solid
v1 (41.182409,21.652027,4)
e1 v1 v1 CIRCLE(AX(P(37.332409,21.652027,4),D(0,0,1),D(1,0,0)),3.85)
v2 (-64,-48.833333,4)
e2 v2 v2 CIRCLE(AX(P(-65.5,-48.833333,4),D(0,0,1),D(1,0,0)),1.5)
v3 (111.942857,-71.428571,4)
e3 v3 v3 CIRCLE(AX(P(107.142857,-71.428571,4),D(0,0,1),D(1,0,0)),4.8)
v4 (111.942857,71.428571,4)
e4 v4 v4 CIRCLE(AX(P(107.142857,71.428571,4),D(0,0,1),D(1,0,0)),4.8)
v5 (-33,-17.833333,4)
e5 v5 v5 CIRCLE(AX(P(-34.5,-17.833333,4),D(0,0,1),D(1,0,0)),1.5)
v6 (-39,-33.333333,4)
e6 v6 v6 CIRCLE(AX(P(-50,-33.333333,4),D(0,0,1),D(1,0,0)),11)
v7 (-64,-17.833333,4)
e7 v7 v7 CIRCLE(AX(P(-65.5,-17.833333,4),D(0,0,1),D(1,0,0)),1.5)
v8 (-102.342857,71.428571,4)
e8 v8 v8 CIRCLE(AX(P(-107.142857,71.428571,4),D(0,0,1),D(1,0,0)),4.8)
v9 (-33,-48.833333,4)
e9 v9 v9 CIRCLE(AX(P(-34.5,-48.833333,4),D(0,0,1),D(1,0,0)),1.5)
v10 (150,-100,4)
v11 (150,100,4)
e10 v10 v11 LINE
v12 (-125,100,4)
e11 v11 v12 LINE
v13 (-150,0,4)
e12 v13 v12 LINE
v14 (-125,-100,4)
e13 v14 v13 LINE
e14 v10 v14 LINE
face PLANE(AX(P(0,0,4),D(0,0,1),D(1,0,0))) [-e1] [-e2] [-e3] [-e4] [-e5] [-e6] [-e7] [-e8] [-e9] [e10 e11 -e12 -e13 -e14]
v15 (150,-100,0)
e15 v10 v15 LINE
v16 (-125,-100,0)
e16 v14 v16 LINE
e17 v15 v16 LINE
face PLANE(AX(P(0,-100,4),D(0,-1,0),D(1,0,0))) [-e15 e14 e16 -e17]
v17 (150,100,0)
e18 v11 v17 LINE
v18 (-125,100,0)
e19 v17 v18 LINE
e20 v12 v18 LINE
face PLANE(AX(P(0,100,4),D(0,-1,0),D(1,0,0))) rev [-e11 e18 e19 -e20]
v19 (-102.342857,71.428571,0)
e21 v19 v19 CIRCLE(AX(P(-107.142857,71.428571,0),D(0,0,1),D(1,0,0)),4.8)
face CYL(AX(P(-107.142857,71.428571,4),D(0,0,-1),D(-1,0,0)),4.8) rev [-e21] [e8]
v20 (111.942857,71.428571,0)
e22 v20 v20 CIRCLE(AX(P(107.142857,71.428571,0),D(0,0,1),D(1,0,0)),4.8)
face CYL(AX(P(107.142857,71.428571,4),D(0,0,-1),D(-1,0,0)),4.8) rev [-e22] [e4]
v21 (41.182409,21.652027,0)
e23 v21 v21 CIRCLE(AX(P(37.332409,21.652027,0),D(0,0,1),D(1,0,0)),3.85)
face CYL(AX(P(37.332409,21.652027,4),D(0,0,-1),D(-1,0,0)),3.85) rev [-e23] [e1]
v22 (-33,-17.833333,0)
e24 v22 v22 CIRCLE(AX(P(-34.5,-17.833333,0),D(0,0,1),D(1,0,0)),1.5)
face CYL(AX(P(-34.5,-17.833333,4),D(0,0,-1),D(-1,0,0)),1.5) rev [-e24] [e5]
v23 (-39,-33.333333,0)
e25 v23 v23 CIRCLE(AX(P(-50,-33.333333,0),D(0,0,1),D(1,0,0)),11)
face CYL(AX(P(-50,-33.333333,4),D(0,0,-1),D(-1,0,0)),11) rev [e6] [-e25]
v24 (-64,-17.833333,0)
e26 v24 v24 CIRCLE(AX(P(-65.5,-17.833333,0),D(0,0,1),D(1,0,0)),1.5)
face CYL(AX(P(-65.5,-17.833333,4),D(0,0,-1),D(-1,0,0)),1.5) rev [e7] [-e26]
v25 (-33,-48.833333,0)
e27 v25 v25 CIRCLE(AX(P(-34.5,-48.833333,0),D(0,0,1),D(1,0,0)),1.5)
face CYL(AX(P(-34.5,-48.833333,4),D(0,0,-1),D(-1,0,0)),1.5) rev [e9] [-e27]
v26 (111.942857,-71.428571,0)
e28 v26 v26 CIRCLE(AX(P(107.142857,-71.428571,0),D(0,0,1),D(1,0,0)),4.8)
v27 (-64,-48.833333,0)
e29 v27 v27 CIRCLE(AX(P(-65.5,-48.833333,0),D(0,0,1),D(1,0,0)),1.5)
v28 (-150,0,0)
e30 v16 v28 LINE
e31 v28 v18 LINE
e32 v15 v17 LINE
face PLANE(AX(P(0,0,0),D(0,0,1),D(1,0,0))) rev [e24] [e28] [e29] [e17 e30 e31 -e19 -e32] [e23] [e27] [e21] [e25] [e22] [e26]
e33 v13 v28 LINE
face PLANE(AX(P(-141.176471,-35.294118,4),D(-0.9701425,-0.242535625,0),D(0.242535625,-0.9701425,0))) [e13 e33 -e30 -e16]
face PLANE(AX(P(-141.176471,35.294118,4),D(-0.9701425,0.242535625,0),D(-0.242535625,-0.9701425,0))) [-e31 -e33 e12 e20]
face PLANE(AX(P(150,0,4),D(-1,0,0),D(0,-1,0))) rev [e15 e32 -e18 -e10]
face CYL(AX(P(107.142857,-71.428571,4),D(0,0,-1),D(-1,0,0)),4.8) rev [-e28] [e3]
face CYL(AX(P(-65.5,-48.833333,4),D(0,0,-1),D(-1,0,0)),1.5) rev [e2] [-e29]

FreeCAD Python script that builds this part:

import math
import FreeCAD as App
import Part
import Sketcher
from FreeCAD import Vector
Q = App.Units.Quantity

doc = App.newDocument("Part")
body = doc.addObject("PartDesign::Body", "Body")

sketch1 = body.newObject("Sketcher::SketchObject", "Sketch")
sketch1.AttachmentSupport = (doc.getObject("XY_Plane"), [""])
sketch1.MapMode = "FlatFace"
sketch1.addGeometry([
    Part.LineSegment(Vector(-125, -100, 0), Vector(150, -100, 0)),
    Part.LineSegment(Vector(150, -100, 0), Vector(150, 100, 0)),
    Part.LineSegment(Vector(150, 100, 0), Vector(-125, 100, 0)),
    Part.LineSegment(Vector(-125, 100, 0), Vector(-150, 0, 0)),
    Part.LineSegment(Vector(-150, 0, 0), Vector(-125, -100, 0)),
    Part.Circle(Vector(-100, -83.333333, 0), Vector(0, 0, 1), 1.5),
    Part.ArcOfCircle(Part.Circle(Vector(-50, -33.333333, 0), Vector(0, 0, 1), 50), math.radians(64.975865), math.radians(115.024135)),
    Part.ArcOfCircle(Part.Circle(Vector(-50, -33.333333, 0), Vector(0, 0, 1), 50), math.radians(3.439813), math.radians(64.975865)),
    Part.ArcOfCircle(Part.Circle(Vector(-49.999999, -33.333333, 0), Vector(0, 0, 1), 49.999999), math.radians(0), math.radians(3.439813)),
    Part.ArcOfCircle(Part.Circle(Vector(-49.999999, -33.333333, 0), Vector(0, 0, 1), 49.999999), math.radians(-3.439813), math.radians(0)),
    Part.ArcOfCircle(Part.Circle(Vector(-50, -33.333333, 0), Vector(0, 0, 1), 50), math.radians(-64.975865), math.radians(-3.439813)),
    Part.ArcOfCircle(Part.Circle(Vector(-50, -33.333333, 0), Vector(0, 0, 1), 50), math.radians(-115.024135), math.radians(-64.975865)),
    Part.ArcOfCircle(Part.Circle(Vector(-50, -33.333333, 0), Vector(0, 0, 1), 50), math.radians(-176.560187), math.radians(-115.024135)),
    Part.ArcOfCircle(Part.Circle(Vector(-50, -33.333333, 0), Vector(0, 0, 1), 50), math.radians(176.560187), math.radians(183.439813)),
    Part.ArcOfCircle(Part.Circle(Vector(-50, -33.333333, 0), Vector(0, 0, 1), 50), math.radians(115.024135), math.radians(176.560187)),
    Part.Circle(Vector(0, -83.333333, 0), Vector(0, 0, 1), 1.5),
    Part.Circle(Vector(107.142857, -71.428571, 0), Vector(0, 0, 1), 4.8),
    Part.Circle(Vector(-100, 16.666667, 0), Vector(0, 0, 1), 1.5),
    Part.Circle(Vector(-107.142857, 71.428571, 0), Vector(0, 0, 1), 4.8),
    Part.Circle(Vector(21.832409, 6.152027, 0), Vector(0, 0, 1), 1.5),
    Part.Circle(Vector(52.832409, 6.152027, 0), Vector(0, 0, 1), 1.5),
    Part.Circle(Vector(0, 16.666667, 0), Vector(0, 0, 1), 1.5),
    Part.Circle(Vector(37.332409, 21.652027, 0), Vector(0, 0, 1), 4),
    Part.Circle(Vector(21.832409, 37.152027, 0), Vector(0, 0, 1), 1.5),
    Part.Circle(Vector(52.832409, 37.152027, 0), Vector(0, 0, 1), 1.5),
    Part.Circle(Vector(107.142857, 71.428571, 0), Vector(0, 0, 1), 4.8),
], False)
sketch1.addConstraint([
    Sketcher.Constraint("Coincident", 0, 2, 1, 1),
    Sketcher.Constraint("Coincident", 1, 2, 2, 1),
    Sketcher.Constraint("Coincident", 2, 2, 3, 1),
    Sketcher.Constraint("Coincident", 3, 2, 4, 1),
    Sketcher.Constraint("Coincident", 4, 2, 0, 1),
    Sketcher.Constraint("Tangent", 6, 1, 7, 2),
    Sketcher.Constraint("Tangent", 7, 1, 8, 2),
    Sketcher.Constraint("Tangent", 8, 1, 9, 2),
    Sketcher.Constraint("Tangent", 9, 1, 10, 2),
    Sketcher.Constraint("Tangent", 10, 1, 11, 2),
    Sketcher.Constraint("Tangent", 11, 1, 12, 2),
    Sketcher.Constraint("Tangent", 12, 1, 13, 2),
    Sketcher.Constraint("Tangent", 13, 1, 14, 2),
    Sketcher.Constraint("Tangent", 14, 1, 6, 2),
    Sketcher.Constraint("Horizontal", 0),
    Sketcher.Constraint("Vertical", 1),
    Sketcher.Constraint("Horizontal", 2),
    Sketcher.Constraint("Coincident", 8, 3, 6, 3),
    Sketcher.Constraint("Coincident", 10, 3, 6, 3),
    Sketcher.Constraint("Coincident", 12, 3, 6, 3),
    Sketcher.Constraint("Equal", 5, 15),
    Sketcher.Constraint("Equal", 15, 17),
    Sketcher.Constraint("Equal", 16, 18),
    Sketcher.Constraint("Equal", 17, 19),
    Sketcher.Constraint("Equal", 19, 20),
    Sketcher.Constraint("Equal", 20, 21),
    Sketcher.Constraint("Equal", 21, 23),
    Sketcher.Constraint("Equal", 23, 24),
    Sketcher.Constraint("Equal", 18, 25),
    Sketcher.Constraint("Symmetric", 16, 3, 18, 3, -1, 1),
    Sketcher.Constraint("Symmetric", 18, 3, 25, 3, -2),
    Sketcher.Constraint("Symmetric", 2, 2, 4, 2, -1),
    Sketcher.Constraint("PointOnObject", 15, 3, -2),
    Sketcher.Constraint("PointOnObject", 21, 3, -2),
    Sketcher.Constraint("PointOnObject", 3, 2, -1),
    Sketcher.Constraint("PointOnObject", 8, 1, -2),
    Sketcher.Constraint("Horizontal", 5, 3, 15, 3),
    Sketcher.Constraint("Horizontal", 19, 3, 20, 3),
    Sketcher.Constraint("Horizontal", 17, 3, 21, 3),
    Sketcher.Constraint("Horizontal", 23, 3, 24, 3),
    Sketcher.Constraint("Horizontal", 14, 3, 8, 1),
    Sketcher.Constraint("Horizontal", 10, 1, 11, 1),
    Sketcher.Constraint("Horizontal", 9, 1, 12, 1),
    Sketcher.Constraint("Horizontal", 7, 1, 13, 1),
    Sketcher.Constraint("Horizontal", 6, 1, 14, 1),
    Sketcher.Constraint("Vertical", 5, 3, 17, 3),
    Sketcher.Constraint("Vertical", 19, 3, 23, 3),
    Sketcher.Constraint("Vertical", 20, 3, 24, 3),
    Sketcher.Constraint("Vertical", 7, 1, 9, 1),
    Sketcher.Constraint("Vertical", 6, 1, 10, 1),
    Sketcher.Constraint("Diameter", 5, Q("3 mm")),
    Sketcher.Constraint("Diameter", 22, Q("8 mm")),
    Sketcher.Constraint("Radius", 6, Q("50 mm")),
    Sketcher.Constraint("Diameter", 16, Q("9.6 mm")),
    Sketcher.Constraint("DistanceX", 0, 1, 0, 2, Q("275 mm")),
    Sketcher.Constraint("DistanceY", 1, 1, 1, 2, Q("200 mm")),
    Sketcher.Constraint("DistanceX", 5, 3, -1, 1, Q("100 mm")),
    Sketcher.Constraint("DistanceX", -1, 1, 0, 2, Q("150 mm")),
    Sketcher.Constraint("DistanceX", 3, 2, -1, 1, Q("150 mm")),
    Sketcher.Constraint("DistanceY", 5, 3, 6, 3, Q("50 mm")),
    Sketcher.Constraint("DistanceY", 11, 3, 17, 3, Q("50 mm")),
    Sketcher.Constraint("DistanceX", 19, 3, 20, 3, Q("31 mm")),
    Sketcher.Constraint("DistanceY", 19, 3, 23, 3, Q("31 mm")),
    Sketcher.Constraint("DistanceY", 7, 1, 21, 3, Q("47 mm")),
    Sketcher.Constraint("DistanceX", 19, 3, 22, 3, Q("15.5 mm")),
    Sketcher.Constraint("DistanceY", 19, 3, 22, 3, Q("15.5 mm")),
    Sketcher.Constraint("DistanceX", 11, 1, 10, 1, Q("42.3 mm")),
    Sketcher.Constraint("DistanceY", 16, 3, -1, 1, Q("71.428571 mm")),
    Sketcher.Constraint("DistanceX", -1, 1, 19, 3, Q("21.832409 mm")),
    Sketcher.Constraint("DistanceY", -1, 1, 6, 1, Q("11.973151 mm")),
    Sketcher.Constraint("DistanceY", 9, 3, 19, 3, Q("39.48536 mm")),
    Sketcher.Constraint("DistanceX", 20, 3, 16, 3, Q("54.310448 mm")),
])
pad1 = body.newObject("PartDesign::Pad", "Pad")
pad1.Profile = sketch1
pad1.Length = 4

sketch2 = body.newObject("Sketcher::SketchObject", "Sketch001")
sketch2.AttachmentSupport = (doc.getObject("XY_Plane"), [""])
sketch2.MapMode = "FlatFace"
sketch2.addGeometry([
    Part.ArcOfCircle(Part.Circle(Vector(-50, -33.333333, 0), Vector(0, 0, 1), 50), math.radians(115.024135), math.radians(176.560187)),
    Part.ArcOfCircle(Part.Circle(Vector(-50, -33.333333, 0), Vector(0, 0, 1), 50), math.radians(176.560187), math.radians(183.439813)),
    Part.ArcOfCircle(Part.Circle(Vector(-50, -33.333333, 0), Vector(0, 0, 1), 50), math.radians(-176.560187), math.radians(-115.024135)),
    Part.LineSegment(Vector(-71.15, -78.639817, 0), Vector(-71.15, -67.284438, 0)),
    Part.ArcOfCircle(Part.Circle(Vector(-50, -33.333333, 0), Vector(0, 0, 1), 40), math.radians(121.921036), math.radians(238.078964)),
    Part.LineSegment(Vector(-71.15, 0.617771, 0), Vector(-71.15, 11.973151, 0)),
    Part.ArcOfCircle(Part.Circle(Vector(-50, -33.333333, 0), Vector(0, 0, 1), 50), math.radians(3.439813), math.radians(64.975865)),
    Part.LineSegment(Vector(-28.85, 11.973151, 0), Vector(-28.85, 0.617771, 0)),
    Part.ArcOfCircle(Part.Circle(Vector(-50, -33.333333, 0), Vector(0, 0, 1), 40), math.radians(0), math.radians(58.078964)),
    Part.ArcOfCircle(Part.Circle(Vector(-50, -33.333333, 0), Vector(0, 0, 1), 40), math.radians(-58.078964), math.radians(0)),
    Part.LineSegment(Vector(-28.85, -67.284438, 0), Vector(-28.85, -78.639817, 0)),
    Part.ArcOfCircle(Part.Circle(Vector(-50, -33.333333, 0), Vector(0, 0, 1), 50), math.radians(-64.975865), math.radians(-3.439813)),
    Part.ArcOfCircle(Part.Circle(Vector(-49.999999, -33.333333, 0), Vector(0, 0, 1), 49.999999), math.radians(-3.439813), math.radians(0)),
    Part.ArcOfCircle(Part.Circle(Vector(-49.999999, -33.333333, 0), Vector(0, 0, 1), 49.999999), math.radians(0), math.radians(3.439813)),
], False)
sketch2.addConstraint([
    Sketcher.Constraint("Tangent", 0, 2, 1, 1),
    Sketcher.Constraint("Tangent", 1, 2, 2, 1),
    Sketcher.Constraint("Coincident", 2, 2, 3, 1),
    Sketcher.Constraint("Coincident", 3, 2, 4, 2),
    Sketcher.Constraint("Coincident", 4, 1, 5, 1),
    Sketcher.Constraint("Coincident", 5, 2, 0, 1),
    Sketcher.Constraint("Coincident", 6, 2, 7, 1),
    Sketcher.Constraint("Coincident", 7, 2, 8, 2),
    Sketcher.Constraint("Tangent", 8, 1, 9, 2),
    Sketcher.Constraint("Coincident", 9, 1, 10, 1),
    Sketcher.Constraint("Coincident", 10, 2, 11, 1),
    Sketcher.Constraint("Tangent", 11, 2, 12, 1),
    Sketcher.Constraint("Tangent", 12, 2, 13, 1),
    Sketcher.Constraint("Tangent", 13, 2, 6, 1),
    Sketcher.Constraint("Vertical", 3),
    Sketcher.Constraint("Vertical", 5),
    Sketcher.Constraint("Vertical", 7),
    Sketcher.Constraint("Vertical", 10),
    Sketcher.Constraint("Coincident", 2, 3, 0, 3),
    Sketcher.Constraint("Coincident", 4, 3, 0, 3),
    Sketcher.Constraint("Coincident", 6, 3, 0, 3),
    Sketcher.Constraint("Coincident", 8, 3, 0, 3),
    Sketcher.Constraint("Coincident", 11, 3, 0, 3),
    Sketcher.Constraint("Equal", 2, 6),
    Sketcher.Constraint("Equal", 4, 8),
    Sketcher.Constraint("Equal", 8, 9),
    Sketcher.Constraint("Equal", 11, 12),
    Sketcher.Constraint("PointOnObject", 12, 2, -2),
    Sketcher.Constraint("Horizontal", 5, 2, 6, 2),
    Sketcher.Constraint("Horizontal", 13, 3, 8, 1),
    Sketcher.Constraint("Horizontal", 3, 2, 9, 1),
    Sketcher.Constraint("Horizontal", 1, 2, 11, 2),
    Sketcher.Constraint("Horizontal", 8, 1, 12, 2),
    Sketcher.Constraint("Horizontal", 0, 2, 13, 2),
    Sketcher.Constraint("Vertical", 0, 2, 1, 2),
    Sketcher.Constraint("Vertical", 3, 2, 4, 1),
    Sketcher.Constraint("Radius", 0, Q("50 mm")),
    Sketcher.Constraint("Radius", 4, Q("40 mm")),
    Sketcher.Constraint("DistanceY", 9, 3, 0, 2, Q("3 mm")),
    Sketcher.Constraint("DistanceX", 5, 2, 6, 2, Q("42.3 mm")),
    Sketcher.Constraint("DistanceY", -1, 1, 4, 1, Q("0.617771 mm")),
])
pad2 = body.newObject("PartDesign::Pad", "Pad001")
pad2.Profile = sketch2
pad2.Length = 4

sketch3 = body.newObject("Sketcher::SketchObject", "Sketch002")
sketch3.AttachmentSupport = (doc.getObject("XY_Plane"), [""])
sketch3.MapMode = "FlatFace"
sketch3.addGeometry([
    Part.ArcOfCircle(Part.Circle(Vector(-50, -33.333333, 0), Vector(0, 0, 1), 50), math.radians(64.975865), math.radians(115.024135)),
    Part.LineSegment(Vector(-71.15, 11.973151, 0), Vector(-71.15, 0.617771, 0)),
    Part.ArcOfCircle(Part.Circle(Vector(-50, -33.333333, 0), Vector(0, 0, 1), 40), math.radians(121.921036), math.radians(238.078964)),
    Part.LineSegment(Vector(-71.15, -67.284438, 0), Vector(-71.15, -78.639817, 0)),
    Part.ArcOfCircle(Part.Circle(Vector(-50, -33.333333, 0), Vector(0, 0, 1), 50), math.radians(-115.024135), math.radians(-64.975865)),
    Part.LineSegment(Vector(-28.85, -78.639817, 0), Vector(-28.85, -67.284438, 0)),
    Part.ArcOfCircle(Part.Circle(Vector(-50, -33.333333, 0), Vector(0, 0, 1), 40), math.radians(-58.078964), math.radians(58.078964)),
    Part.LineSegment(Vector(-28.85, 0.617771, 0), Vector(-28.85, 11.973151, 0)),
    Part.Circle(Vector(-34.5, -17.833333, 0), Vector(0, 0, 1), 1.5),
    Part.Circle(Vector(-65.5, -48.833333, 0), Vector(0, 0, 1), 1.5),
    Part.Circle(Vector(-34.5, -48.833333, 0), Vector(0, 0, 1), 1.5),
    Part.Circle(Vector(-65.5, -17.833333, 0), Vector(0, 0, 1), 1.5),
    Part.Circle(Vector(-50, -33.333333, 0), Vector(0, 0, 1), 11),
    Part.Circle(Vector(0, 16.666667, 0), Vector(0, 0, 1), 1.5),
    Part.Circle(Vector(-100, 16.666667, 0), Vector(0, 0, 1), 1.5),
    Part.Circle(Vector(-100, -83.333333, 0), Vector(0, 0, 1), 1.5),
    Part.Circle(Vector(0, -83.333333, 0), Vector(0, 0, 1), 1.5),
    Part.Circle(Vector(52.832409, 37.152027, 0), Vector(0, 0, 1), 1.5),
    Part.Circle(Vector(21.832409, 37.152027, 0), Vector(0, 0, 1), 1.5),
    Part.Circle(Vector(21.832409, 6.152027, 0), Vector(0, 0, 1), 1.5),
    Part.Circle(Vector(52.832409, 6.152027, 0), Vector(0, 0, 1), 1.5),
], False)
sketch3.addConstraint([
    Sketcher.Constraint("Coincident", 0, 2, 1, 1),
    Sketcher.Constraint("Coincident", 1, 2, 2, 1),
    Sketcher.Constraint("Coincident", 2, 2, 3, 1),
    Sketcher.Constraint("Coincident", 3, 2, 4, 1),
    Sketcher.Constraint("Coincident", 4, 2, 5, 1),
    Sketcher.Constraint("Coincident", 5, 2, 6, 1),
    Sketcher.Constraint("Coincident", 6, 2, 7, 1),
    Sketcher.Constraint("Coincident", 7, 2, 0, 1),
    Sketcher.Constraint("Vertical", 1),
    Sketcher.Constraint("Vertical", 3),
    Sketcher.Constraint("Vertical", 5),
    Sketcher.Constraint("Vertical", 7),
    Sketcher.Constraint("Coincident", 2, 3, 0, 3),
    Sketcher.Constraint("Coincident", 4, 3, 0, 3),
    Sketcher.Constraint("Coincident", 6, 3, 0, 3),
    Sketcher.Constraint("Coincident", 12, 3, 0, 3),
    Sketcher.Constraint("Equal", 0, 4),
    Sketcher.Constraint("Equal", 2, 6),
    Sketcher.Constraint("Equal", 8, 9),
    Sketcher.Constraint("Equal", 9, 10),
    Sketcher.Constraint("Equal", 10, 11),
    Sketcher.Constraint("Equal", 11, 13),
    Sketcher.Constraint("Equal", 13, 14),
    Sketcher.Constraint("Equal", 14, 15),
    Sketcher.Constraint("Equal", 15, 16),
    Sketcher.Constraint("Equal", 16, 17),
    Sketcher.Constraint("Equal", 17, 18),
    Sketcher.Constraint("Equal", 18, 19),
    Sketcher.Constraint("Equal", 19, 20),
    Sketcher.Constraint("PointOnObject", 13, 3, -2),
    Sketcher.Constraint("PointOnObject", 16, 3, -2),
    Sketcher.Constraint("Horizontal", 9, 3, 10, 3),
    Sketcher.Constraint("Horizontal", 8, 3, 11, 3),
    Sketcher.Constraint("Horizontal", 13, 3, 14, 3),
    Sketcher.Constraint("Horizontal", 15, 3, 16, 3),
    Sketcher.Constraint("Horizontal", 17, 3, 18, 3),
    Sketcher.Constraint("Horizontal", 19, 3, 20, 3),
    Sketcher.Constraint("Horizontal", 3, 2, 4, 2),
    Sketcher.Constraint("Horizontal", 1, 2, 6, 2),
    Sketcher.Constraint("Vertical", 8, 3, 10, 3),
    Sketcher.Constraint("Vertical", 9, 3, 11, 3),
    Sketcher.Constraint("Vertical", 14, 3, 15, 3),
    Sketcher.Constraint("Vertical", 18, 3, 19, 3),
    Sketcher.Constraint("Vertical", 17, 3, 20, 3),
    Sketcher.Constraint("Vertical", 1, 2, 2, 2),
    Sketcher.Constraint("Diameter", 8, Q("3 mm")),
    Sketcher.Constraint("Diameter", 12, Q("22 mm")),
    Sketcher.Constraint("Radius", 0, Q("50 mm")),
    Sketcher.Constraint("Radius", 2, Q("40 mm")),
    Sketcher.Constraint("DistanceX", 0, 3, -1, 1, Q("50 mm")),
    Sketcher.Constraint("DistanceX", 14, 3, -1, 1, Q("100 mm")),
    Sketcher.Constraint("DistanceX", 9, 3, 8, 3, Q("31 mm")),
    Sketcher.Constraint("DistanceY", 9, 3, 8, 3, Q("31 mm")),
    Sketcher.Constraint("DistanceY", 4, 3, 13, 3, Q("50 mm")),
    Sketcher.Constraint("DistanceY", 15, 3, 2, 3, Q("50 mm")),
    Sketcher.Constraint("DistanceX", 18, 3, 17, 3, Q("31 mm")),
    Sketcher.Constraint("DistanceY", 19, 3, 18, 3, Q("31 mm")),
    Sketcher.Constraint("DistanceX", 8, 3, -1, 1, Q("34.5 mm")),
    Sketcher.Constraint("DistanceY", 4, 3, 8, 3, Q("15.5 mm")),
    Sketcher.Constraint("DistanceX", 3, 2, 4, 2, Q("42.3 mm")),
    Sketcher.Constraint("DistanceX", -1, 1, 17, 3, Q("52.832409 mm")),
    Sketcher.Constraint("DistanceY", -1, 1, 0, 2, Q("11.973151 mm")),
    Sketcher.Constraint("DistanceY", 13, 3, 17, 3, Q("20.48536 mm")),
])
pad3 = body.newObject("PartDesign::Pad", "Pad002")
pad3.Profile = sketch3
pad3.Length = 4

sketch4 = body.newObject("Sketcher::SketchObject", "Sketch003")
sketch4.AttachmentSupport = (doc.getObject("XY_Plane"), [""])
sketch4.MapMode = "FlatFace"
sketch4.addGeometry([
    Part.Circle(Vector(37.332409, 21.652027, 0), Vector(0, 0, 1), 4),
    Part.Circle(Vector(37.332409, 21.652027, 0), Vector(0, 0, 1), 3.85),
], False)
sketch4.addConstraint([
    Sketcher.Constraint("Coincident", 1, 3, 0, 3),
    Sketcher.Constraint("Diameter", 0, Q("8 mm")),
    Sketcher.Constraint("Diameter", 1, Q("7.7 mm")),
    Sketcher.Constraint("DistanceX", -1, 1, 0, 3, Q("37.332409 mm")),
    Sketcher.Constraint("DistanceY", -1, 1, 0, 3, Q("21.652027 mm")),
])
pad4 = body.newObject("PartDesign::Pad", "Pad003")
pad4.Profile = sketch4
pad4.Length = 4

sketch5 = body.newObject("Sketcher::SketchObject", "Sketch004")
sketch5.AttachmentSupport = (doc.getObject("XY_Plane"), [""])
sketch5.MapMode = "FlatFace"
sketch5.addGeometry([
    Part.Circle(Vector(37.332409, 21.652027, 0), Vector(0, 0, 1), 4),
    Part.Circle(Vector(37.332409, 21.652027, 0), Vector(0, 0, 1), 3.85),
], False)
sketch5.addConstraint([
    Sketcher.Constraint("Coincident", 1, 3, 0, 3),
    Sketcher.Constraint("Diameter", 0, Q("8 mm")),
    Sketcher.Constraint("Diameter", 1, Q("7.7 mm")),
    Sketcher.Constraint("DistanceX", -1, 1, 0, 3, Q("37.332409 mm")),
    Sketcher.Constraint("DistanceY", -1, 1, 0, 3, Q("21.652027 mm")),
])
pad5 = body.newObject("PartDesign::Pad", "Pad004")
pad5.Profile = sketch5
pad5.Length = 4

doc.recompute()
